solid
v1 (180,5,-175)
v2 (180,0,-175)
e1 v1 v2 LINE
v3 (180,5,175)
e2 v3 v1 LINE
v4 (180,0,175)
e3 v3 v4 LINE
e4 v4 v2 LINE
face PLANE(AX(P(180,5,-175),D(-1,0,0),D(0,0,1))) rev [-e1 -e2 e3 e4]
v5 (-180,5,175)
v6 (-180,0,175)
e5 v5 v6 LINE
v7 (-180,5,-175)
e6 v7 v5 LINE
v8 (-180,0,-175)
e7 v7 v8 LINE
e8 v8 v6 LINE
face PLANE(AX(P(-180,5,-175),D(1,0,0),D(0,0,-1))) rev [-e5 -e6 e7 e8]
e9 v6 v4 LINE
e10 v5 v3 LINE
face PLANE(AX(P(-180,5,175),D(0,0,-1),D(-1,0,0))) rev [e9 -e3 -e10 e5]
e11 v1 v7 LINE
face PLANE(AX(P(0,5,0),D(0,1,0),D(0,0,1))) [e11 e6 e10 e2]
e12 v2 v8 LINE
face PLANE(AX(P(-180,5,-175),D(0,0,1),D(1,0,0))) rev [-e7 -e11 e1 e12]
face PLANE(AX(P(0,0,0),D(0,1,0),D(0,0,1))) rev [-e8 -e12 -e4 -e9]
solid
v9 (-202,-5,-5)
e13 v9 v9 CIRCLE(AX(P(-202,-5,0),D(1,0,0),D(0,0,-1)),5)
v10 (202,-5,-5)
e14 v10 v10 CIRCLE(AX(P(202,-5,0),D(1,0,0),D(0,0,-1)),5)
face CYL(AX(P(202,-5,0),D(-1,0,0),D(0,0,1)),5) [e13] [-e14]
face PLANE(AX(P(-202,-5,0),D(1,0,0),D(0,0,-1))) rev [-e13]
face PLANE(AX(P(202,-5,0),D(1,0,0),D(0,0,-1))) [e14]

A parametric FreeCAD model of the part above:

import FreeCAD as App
import Part
import Sketcher

V = App.Vector

doc = App.newDocument("Part")
body = doc.addObject("PartDesign::Body", "Body")

sketch1 = body.newObject("Sketcher::SketchObject", "Sketch")
sketch1.AttachmentSupport = (doc.getObject("XZ_Plane"), [""])
sketch1.MapMode = "FlatFace"
sketch1.addGeometry([
    Part.LineSegment(V(-180, -175, 0), V(-180, 175, 0)),
    Part.LineSegment(V(-180, 175, 0), V(180, 175, 0)),
    Part.LineSegment(V(180, 175, 0), V(180, -175, 0)),
    Part.LineSegment(V(180, -175, 0), V(-180, -175, 0)),
], False)
sketch1.addConstraint([
    Sketcher.Constraint("Coincident", 0, 2, 1, 1),
    Sketcher.Constraint("Coincident", 1, 2, 2, 1),
    Sketcher.Constraint("Coincident", 2, 2, 3, 1),
    Sketcher.Constraint("Coincident", 3, 2, 0, 1),
    Sketcher.Constraint("Vertical", 0),
    Sketcher.Constraint("Horizontal", 1),
    Sketcher.Constraint("Vertical", 2),
    Sketcher.Constraint("Horizontal", 3),
    Sketcher.Constraint("Symmetric", 0, 2, 2, 2, -1, 1),
    Sketcher.Constraint("DistanceX", 1, 1, 1, 2, 360.0),
    Sketcher.Constraint("DistanceY", 0, 1, 0, 2, 350.0),
])
pad1 = body.newObject("PartDesign::Pad", "Pad")
pad1.Profile = sketch1
pad1.Length = 5
pad1.Reversed = True
body2 = doc.addObject("PartDesign::Body", "Body001")

sketch2 = body2.newObject("Sketcher::SketchObject", "Sketch001")
sketch2.AttachmentSupport = (doc.getObject("YZ_Plane001"), [""])
sketch2.MapMode = "FlatFace"
sketch2.addGeometry(Part.Circle(V(-5, 0, 0), V(0, 0, 1), 5), False)
sketch2.addConstraint([
    Sketcher.Constraint("PointOnObject", 0, 3, -1),
    Sketcher.Constraint("Diameter", 0, 10.0),
    Sketcher.Constraint("DistanceX", 0, 3, -1, 1, 5.0),
])
pad2 = body2.newObject("PartDesign::Pad", "Pad001")
pad2.Profile = sketch2
pad2.Length = 404
pad2.Midplane = True

doc.recompute()
